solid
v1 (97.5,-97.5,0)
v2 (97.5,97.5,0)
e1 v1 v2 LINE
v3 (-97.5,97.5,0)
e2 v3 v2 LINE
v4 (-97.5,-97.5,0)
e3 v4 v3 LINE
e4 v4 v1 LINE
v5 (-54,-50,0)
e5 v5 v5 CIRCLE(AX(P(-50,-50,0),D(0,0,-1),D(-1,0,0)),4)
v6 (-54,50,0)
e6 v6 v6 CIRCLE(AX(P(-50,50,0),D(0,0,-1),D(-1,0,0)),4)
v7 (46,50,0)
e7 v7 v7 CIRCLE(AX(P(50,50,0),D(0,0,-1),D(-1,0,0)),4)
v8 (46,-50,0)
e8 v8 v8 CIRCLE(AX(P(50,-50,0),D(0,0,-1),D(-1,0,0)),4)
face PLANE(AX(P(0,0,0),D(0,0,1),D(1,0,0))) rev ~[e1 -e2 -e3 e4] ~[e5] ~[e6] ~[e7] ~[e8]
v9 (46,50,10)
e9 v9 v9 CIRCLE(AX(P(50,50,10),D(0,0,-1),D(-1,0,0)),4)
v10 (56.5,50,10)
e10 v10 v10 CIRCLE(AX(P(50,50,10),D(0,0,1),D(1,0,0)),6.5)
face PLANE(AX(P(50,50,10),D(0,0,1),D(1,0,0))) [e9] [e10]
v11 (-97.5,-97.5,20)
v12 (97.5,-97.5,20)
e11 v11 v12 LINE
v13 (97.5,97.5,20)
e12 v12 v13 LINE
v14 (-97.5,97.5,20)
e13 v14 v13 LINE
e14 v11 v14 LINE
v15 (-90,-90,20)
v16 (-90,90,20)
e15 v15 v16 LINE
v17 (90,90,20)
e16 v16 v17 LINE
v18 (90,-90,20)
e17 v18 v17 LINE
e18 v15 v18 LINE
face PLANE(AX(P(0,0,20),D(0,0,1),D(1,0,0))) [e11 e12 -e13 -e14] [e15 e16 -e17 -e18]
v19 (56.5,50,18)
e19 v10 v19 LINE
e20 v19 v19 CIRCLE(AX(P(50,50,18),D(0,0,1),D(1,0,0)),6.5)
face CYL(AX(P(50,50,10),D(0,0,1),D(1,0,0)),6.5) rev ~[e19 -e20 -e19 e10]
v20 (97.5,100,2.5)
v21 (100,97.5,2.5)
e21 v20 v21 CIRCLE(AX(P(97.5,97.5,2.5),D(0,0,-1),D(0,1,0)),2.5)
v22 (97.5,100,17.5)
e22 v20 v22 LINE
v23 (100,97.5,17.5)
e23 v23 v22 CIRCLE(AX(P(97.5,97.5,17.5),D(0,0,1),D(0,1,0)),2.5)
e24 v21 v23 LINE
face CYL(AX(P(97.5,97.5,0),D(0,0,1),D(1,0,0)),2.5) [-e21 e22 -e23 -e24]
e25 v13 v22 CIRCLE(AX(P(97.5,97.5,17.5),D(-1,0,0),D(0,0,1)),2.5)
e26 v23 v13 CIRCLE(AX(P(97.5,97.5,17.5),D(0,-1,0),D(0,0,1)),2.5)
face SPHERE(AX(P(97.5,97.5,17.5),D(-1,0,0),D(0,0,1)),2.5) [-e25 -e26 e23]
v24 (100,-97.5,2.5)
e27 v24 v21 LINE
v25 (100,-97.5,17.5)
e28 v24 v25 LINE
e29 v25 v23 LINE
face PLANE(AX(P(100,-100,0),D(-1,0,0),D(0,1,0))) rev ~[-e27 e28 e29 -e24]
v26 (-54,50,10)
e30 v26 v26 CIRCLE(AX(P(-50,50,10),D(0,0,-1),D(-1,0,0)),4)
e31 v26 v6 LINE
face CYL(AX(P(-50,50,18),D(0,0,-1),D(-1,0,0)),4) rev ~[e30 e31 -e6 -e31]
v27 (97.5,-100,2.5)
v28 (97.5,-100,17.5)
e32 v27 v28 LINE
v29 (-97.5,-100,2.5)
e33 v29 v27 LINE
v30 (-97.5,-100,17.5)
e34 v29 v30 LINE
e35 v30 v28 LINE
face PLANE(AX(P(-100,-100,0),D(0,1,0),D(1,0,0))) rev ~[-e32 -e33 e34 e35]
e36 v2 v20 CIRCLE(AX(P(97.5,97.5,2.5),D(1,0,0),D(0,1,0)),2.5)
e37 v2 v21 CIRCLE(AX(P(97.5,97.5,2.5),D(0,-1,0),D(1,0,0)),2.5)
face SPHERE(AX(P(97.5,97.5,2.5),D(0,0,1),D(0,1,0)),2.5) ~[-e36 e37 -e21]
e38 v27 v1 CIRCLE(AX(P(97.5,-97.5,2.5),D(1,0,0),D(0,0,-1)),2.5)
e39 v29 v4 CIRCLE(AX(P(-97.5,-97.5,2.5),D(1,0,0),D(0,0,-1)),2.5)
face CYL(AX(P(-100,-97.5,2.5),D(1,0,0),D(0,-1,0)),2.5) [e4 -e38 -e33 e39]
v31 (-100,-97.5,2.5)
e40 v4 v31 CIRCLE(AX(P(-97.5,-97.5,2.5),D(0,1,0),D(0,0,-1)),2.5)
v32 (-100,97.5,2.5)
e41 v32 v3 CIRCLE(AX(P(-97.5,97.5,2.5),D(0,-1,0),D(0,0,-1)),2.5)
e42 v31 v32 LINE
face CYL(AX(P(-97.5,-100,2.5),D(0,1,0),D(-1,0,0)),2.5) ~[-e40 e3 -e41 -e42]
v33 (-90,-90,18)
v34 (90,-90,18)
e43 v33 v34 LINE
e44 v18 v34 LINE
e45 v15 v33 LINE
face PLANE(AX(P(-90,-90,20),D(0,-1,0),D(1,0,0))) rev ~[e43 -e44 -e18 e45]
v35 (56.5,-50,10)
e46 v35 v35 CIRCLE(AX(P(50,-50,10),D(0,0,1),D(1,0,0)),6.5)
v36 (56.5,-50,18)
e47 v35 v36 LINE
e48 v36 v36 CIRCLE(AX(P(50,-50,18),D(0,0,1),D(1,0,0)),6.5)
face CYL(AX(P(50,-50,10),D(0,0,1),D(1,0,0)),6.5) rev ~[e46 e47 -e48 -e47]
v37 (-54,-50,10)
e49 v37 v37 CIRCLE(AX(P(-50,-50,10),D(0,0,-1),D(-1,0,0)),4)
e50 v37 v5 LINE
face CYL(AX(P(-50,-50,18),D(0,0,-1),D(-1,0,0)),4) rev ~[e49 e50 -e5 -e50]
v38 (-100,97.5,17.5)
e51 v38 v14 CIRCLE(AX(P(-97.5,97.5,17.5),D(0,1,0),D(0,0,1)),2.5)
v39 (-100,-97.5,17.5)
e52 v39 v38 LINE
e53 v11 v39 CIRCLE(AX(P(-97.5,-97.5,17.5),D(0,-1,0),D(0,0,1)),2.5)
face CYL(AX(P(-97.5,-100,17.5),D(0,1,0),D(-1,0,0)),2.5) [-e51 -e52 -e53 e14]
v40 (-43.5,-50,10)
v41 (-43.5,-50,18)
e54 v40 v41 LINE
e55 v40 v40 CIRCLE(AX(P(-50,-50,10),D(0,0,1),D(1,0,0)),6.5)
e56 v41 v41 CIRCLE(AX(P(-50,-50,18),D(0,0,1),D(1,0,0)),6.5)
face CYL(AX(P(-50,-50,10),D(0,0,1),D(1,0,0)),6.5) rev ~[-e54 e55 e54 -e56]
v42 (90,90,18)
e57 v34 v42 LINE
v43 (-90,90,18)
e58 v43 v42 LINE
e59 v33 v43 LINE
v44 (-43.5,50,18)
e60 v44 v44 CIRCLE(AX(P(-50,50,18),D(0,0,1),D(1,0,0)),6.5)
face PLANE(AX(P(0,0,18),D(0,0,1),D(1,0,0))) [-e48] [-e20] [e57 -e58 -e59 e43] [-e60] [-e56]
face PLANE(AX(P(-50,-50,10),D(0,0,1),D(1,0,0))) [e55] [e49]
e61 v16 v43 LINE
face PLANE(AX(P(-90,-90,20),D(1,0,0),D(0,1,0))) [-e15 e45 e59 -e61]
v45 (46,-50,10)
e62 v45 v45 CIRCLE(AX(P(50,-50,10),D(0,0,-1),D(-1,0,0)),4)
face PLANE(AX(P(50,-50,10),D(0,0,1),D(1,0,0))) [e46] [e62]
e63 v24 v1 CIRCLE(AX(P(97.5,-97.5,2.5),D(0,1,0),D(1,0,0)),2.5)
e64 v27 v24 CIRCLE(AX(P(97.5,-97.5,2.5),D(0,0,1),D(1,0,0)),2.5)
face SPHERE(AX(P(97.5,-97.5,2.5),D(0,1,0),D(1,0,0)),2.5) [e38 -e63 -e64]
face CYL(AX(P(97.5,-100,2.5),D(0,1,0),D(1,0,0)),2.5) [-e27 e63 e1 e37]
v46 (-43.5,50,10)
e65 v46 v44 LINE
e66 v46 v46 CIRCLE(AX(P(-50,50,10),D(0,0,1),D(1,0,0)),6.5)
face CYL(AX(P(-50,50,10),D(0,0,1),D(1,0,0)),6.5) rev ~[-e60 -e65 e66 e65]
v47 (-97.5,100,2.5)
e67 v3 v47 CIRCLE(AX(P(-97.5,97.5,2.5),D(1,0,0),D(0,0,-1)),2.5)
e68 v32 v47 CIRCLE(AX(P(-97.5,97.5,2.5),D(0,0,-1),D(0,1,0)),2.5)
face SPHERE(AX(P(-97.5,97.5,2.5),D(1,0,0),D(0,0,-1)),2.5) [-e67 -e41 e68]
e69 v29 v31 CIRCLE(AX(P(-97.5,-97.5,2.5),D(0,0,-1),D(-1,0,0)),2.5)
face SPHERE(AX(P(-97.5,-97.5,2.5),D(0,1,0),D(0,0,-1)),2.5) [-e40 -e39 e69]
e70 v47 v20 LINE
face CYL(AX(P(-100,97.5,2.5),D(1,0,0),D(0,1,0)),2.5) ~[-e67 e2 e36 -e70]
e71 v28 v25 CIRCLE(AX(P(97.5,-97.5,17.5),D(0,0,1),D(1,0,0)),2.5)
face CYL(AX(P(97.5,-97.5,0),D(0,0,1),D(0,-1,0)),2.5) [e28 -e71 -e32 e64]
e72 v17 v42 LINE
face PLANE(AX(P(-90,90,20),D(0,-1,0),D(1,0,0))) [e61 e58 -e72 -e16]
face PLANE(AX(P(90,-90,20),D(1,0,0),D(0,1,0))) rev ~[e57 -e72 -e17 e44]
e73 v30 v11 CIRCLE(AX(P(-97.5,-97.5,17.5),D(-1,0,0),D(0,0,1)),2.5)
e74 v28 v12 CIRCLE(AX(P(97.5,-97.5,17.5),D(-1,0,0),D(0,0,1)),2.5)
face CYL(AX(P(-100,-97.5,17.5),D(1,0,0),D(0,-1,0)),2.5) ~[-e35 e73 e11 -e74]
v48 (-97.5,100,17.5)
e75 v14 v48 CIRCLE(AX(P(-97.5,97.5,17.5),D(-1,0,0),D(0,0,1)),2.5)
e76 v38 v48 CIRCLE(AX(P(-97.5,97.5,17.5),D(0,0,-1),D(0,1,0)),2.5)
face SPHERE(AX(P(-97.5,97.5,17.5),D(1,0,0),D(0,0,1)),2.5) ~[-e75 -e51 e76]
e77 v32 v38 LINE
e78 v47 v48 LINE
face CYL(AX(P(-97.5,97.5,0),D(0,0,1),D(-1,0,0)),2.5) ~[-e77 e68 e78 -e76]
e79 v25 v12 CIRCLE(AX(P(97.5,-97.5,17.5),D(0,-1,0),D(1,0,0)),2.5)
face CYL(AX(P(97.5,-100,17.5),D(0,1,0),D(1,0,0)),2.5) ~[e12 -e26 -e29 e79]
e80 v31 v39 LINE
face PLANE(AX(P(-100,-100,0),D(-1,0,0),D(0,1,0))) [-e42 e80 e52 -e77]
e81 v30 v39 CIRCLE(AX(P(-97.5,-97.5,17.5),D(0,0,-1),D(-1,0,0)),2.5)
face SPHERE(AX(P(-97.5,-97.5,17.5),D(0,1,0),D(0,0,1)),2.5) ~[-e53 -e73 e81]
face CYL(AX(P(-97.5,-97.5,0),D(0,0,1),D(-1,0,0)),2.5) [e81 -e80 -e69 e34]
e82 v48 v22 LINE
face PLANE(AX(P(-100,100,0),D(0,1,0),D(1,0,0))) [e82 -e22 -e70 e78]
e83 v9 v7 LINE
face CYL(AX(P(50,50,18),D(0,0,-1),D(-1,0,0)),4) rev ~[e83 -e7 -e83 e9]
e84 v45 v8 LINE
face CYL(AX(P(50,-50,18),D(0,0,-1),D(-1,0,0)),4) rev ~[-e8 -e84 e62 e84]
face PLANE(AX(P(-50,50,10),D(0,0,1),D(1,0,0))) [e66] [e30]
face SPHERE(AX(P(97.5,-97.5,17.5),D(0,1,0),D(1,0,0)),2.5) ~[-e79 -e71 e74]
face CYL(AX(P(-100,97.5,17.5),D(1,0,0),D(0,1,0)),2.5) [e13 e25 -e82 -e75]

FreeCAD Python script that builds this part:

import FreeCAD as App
import Part
import Sketcher

V = App.Vector
Q = App.Units.Quantity

doc = App.newDocument("Part")
body = doc.addObject("PartDesign::Body", "Body")

# Sketch on XY plane
sketch1 = body.newObject("Sketcher::SketchObject", "Sketch")
sketch1.AttachmentSupport = (doc.getObject("XY_Plane"), [""])
sketch1.MapMode = "FlatFace"
sketch1.addGeometry([
    Part.LineSegment(V(-100, 100, 0), V(-100, -100, 0)),
    Part.LineSegment(V(-100, -100, 0), V(100, -100, 0)),
    Part.LineSegment(V(100, -100, 0), V(100, 100, 0)),
    Part.LineSegment(V(100, 100, 0), V(-100, 100, 0)),
], False)
sketch1.addConstraint([
    Sketcher.Constraint("Coincident", 0, 2, 1, 1),
    Sketcher.Constraint("Coincident", 1, 2, 2, 1),
    Sketcher.Constraint("Coincident", 2, 2, 3, 1),
    Sketcher.Constraint("Coincident", 3, 2, 0, 1),
    Sketcher.Constraint("Vertical", 0),
    Sketcher.Constraint("Horizontal", 1),
    Sketcher.Constraint("Vertical", 2),
    Sketcher.Constraint("Horizontal", 3),
    Sketcher.Constraint("Symmetric", 0, 2, 2, 2, -1, 1),
    Sketcher.Constraint("Equal", 3, 0),
    Sketcher.Constraint("DistanceX", 1, 1, 1, 2, Q("200 mm")),
])
pad1 = body.newObject("PartDesign::Pad", "Pad")
pad1.Profile = sketch1
pad1.Length = 20
doc.recompute()

fillet = body.newObject("PartDesign::Fillet", "Fillet")
fillet.Base = (pad1, ["Edge1"])
fillet.UseAllEdges = True
fillet.Radius = 2.5

# Sketch on XY plane
sketch2 = body.newObject("Sketcher::SketchObject", "Sketch001")
sketch2.AttachmentSupport = (doc.getObject("XY_Plane"), [""])
sketch2.MapMode = "FlatFace"
sketch2.AttachmentOffset = App.Placement(V(0, 0, 20), App.Rotation())
sketch2.addGeometry([
    Part.LineSegment(V(-90, 90, 0), V(-90, -90, 0)),
    Part.LineSegment(V(-90, -90, 0), V(90, -90, 0)),
    Part.LineSegment(V(90, -90, 0), V(90, 90, 0)),
    Part.LineSegment(V(90, 90, 0), V(-90, 90, 0)),
], False)
sketch2.addConstraint([
    Sketcher.Constraint("Coincident", 0, 2, 1, 1),
    Sketcher.Constraint("Coincident", 1, 2, 2, 1),
    Sketcher.Constraint("Coincident", 2, 2, 3, 1),
    Sketcher.Constraint("Coincident", 3, 2, 0, 1),
    Sketcher.Constraint("Vertical", 0),
    Sketcher.Constraint("Horizontal", 1),
    Sketcher.Constraint("Vertical", 2),
    Sketcher.Constraint("Horizontal", 3),
    Sketcher.Constraint("Symmetric", 0, 2, 2, 2, -1, 1),
    Sketcher.Constraint("Equal", 3, 0),
    Sketcher.Constraint("DistanceX", 1, 1, 1, 2, Q("180 mm")),
])
pocket1 = body.newObject("PartDesign::Pocket", "Pocket")
pocket1.Profile = sketch2
pocket1.Length = 2

# Sketch on XY plane
sketch3 = body.newObject("Sketcher::SketchObject", "Sketch002")
sketch3.AttachmentSupport = (doc.getObject("XY_Plane"), [""])
sketch3.MapMode = "FlatFace"
sketch3.AttachmentOffset = App.Placement(V(0, 0, 18), App.Rotation())
sketch3.addGeometry([
    Part.Circle(V(-50, 50, 0), V(0, 0, 1), 4),
    Part.Circle(V(50, 50, 0), V(0, 0, 1), 4),
    Part.Circle(V(50, -50, 0), V(0, 0, 1), 4),
    Part.Circle(V(-50, -50, 0), V(0, 0, 1), 4),
], False)
sketch3.addConstraint([
    Sketcher.Constraint("Equal", 0, 1),
    Sketcher.Constraint("Equal", 1, 2),
    Sketcher.Constraint("Equal", 2, 3),
    Sketcher.Constraint("Symmetric", 0, 3, 2, 3, -1, 1),
    Sketcher.Constraint("Symmetric", 1, 3, 3, 3, -1, 1),
    Sketcher.Constraint("Symmetric", 0, 3, 1, 3, -2),
    Sketcher.Constraint("Diameter", 0, Q("8 mm")),
    Sketcher.Constraint("DistanceX", 0, 3, -1, 1, Q("50 mm")),
    Sketcher.Constraint("DistanceY", -1, 1, 0, 3, Q("50 mm")),
])
doc.recompute()
hole = body.newObject("PartDesign::Hole", "Hole")
hole.Profile = sketch3
hole.ThreadType = "None"
hole.Diameter = 8
hole.DepthType = "ThroughAll"
hole.HoleCutType = "Counterbore"
hole.HoleCutDiameter = 13
hole.HoleCutDepth = 8

doc.recompute()
